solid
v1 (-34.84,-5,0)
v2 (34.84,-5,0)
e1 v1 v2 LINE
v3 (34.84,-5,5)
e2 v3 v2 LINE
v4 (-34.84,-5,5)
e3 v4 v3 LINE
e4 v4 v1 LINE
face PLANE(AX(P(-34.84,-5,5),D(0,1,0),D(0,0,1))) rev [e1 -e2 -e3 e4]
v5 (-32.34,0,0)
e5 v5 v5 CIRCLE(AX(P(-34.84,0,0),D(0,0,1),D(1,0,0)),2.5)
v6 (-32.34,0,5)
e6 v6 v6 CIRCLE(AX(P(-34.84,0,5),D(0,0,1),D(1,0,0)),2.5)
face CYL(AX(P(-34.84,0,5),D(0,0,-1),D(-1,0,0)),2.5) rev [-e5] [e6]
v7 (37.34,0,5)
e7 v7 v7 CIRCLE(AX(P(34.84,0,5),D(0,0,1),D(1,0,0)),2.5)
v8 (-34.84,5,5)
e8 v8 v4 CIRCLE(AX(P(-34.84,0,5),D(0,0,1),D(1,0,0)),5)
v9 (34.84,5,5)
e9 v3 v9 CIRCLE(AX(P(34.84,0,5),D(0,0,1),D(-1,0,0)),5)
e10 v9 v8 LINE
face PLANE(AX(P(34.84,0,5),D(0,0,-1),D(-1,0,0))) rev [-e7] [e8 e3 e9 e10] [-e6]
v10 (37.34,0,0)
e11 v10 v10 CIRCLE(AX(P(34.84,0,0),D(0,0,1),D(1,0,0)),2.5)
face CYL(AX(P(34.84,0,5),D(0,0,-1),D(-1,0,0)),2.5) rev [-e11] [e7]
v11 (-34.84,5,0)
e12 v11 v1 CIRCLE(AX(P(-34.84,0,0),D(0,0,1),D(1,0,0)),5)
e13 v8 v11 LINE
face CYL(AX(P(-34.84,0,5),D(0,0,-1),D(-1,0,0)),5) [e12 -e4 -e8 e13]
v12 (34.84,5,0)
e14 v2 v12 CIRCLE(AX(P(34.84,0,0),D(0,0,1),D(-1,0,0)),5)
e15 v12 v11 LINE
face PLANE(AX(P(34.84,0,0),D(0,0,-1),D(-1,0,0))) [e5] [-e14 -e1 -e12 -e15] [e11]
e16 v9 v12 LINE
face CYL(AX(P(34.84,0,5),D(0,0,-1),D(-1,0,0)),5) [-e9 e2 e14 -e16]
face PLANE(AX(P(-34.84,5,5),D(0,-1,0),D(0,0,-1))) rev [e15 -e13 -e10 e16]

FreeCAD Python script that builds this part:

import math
import FreeCAD as App
import Part
import Sketcher
from FreeCAD import Vector

doc = App.newDocument("Part")
params = doc.addObject("Spreadsheet::Sheet", "Params")
for row, (alias, value) in enumerate([
    ("sketch1_diameter", "5 mm"),
    ("sketch1_radius", "5 mm"),
    ("sketch1_width", "69.68 mm"),
    ("pad1_length", "5 mm"),
], start=1):
    params.set(f"A{row}", alias)
    params.set(f"B{row}", "=" + value)
    params.setAlias(f"B{row}", alias)

body = doc.addObject("PartDesign::Body", "Body")

# Sketch on XY plane
sketch1 = doc.addObject("Sketcher::SketchObject", "Sketch")
body.addObject(sketch1)
sketch1.AttachmentSupport = (doc.XY_Plane, [""])
sketch1.MapMode = "FlatFace"
sketch1.addGeometry(Part.LineSegment(Vector(34.8, 5, 0), Vector(-34.8, 5, 0)), False)
sketch1.addGeometry(Part.ArcOfCircle(Part.Circle(Vector(-34.8, 0, 0), Vector(0, 0, 1), 5), math.radians(90), math.radians(270)), False)
sketch1.addGeometry(Part.LineSegment(Vector(-34.8, -5, 0), Vector(34.8, -5, 0)), False)
sketch1.addGeometry(Part.ArcOfCircle(Part.Circle(Vector(34.8, 0, 0), Vector(0, 0, 1), 5), math.radians(-90), math.radians(90)), False)
sketch1.addGeometry(Part.Circle(Vector(34.8, 0, 0), Vector(0, 0, 1), 2.5), False)
sketch1.addGeometry(Part.Circle(Vector(-34.8, 0, 0), Vector(0, 0, 1), 2.5), False)
sketch1.addConstraint(Sketcher.Constraint("Tangent", 0, 2, 1, 1))
sketch1.addConstraint(Sketcher.Constraint("Tangent", 1, 2, 2, 1))
sketch1.addConstraint(Sketcher.Constraint("Tangent", 2, 2, 3, 1))
sketch1.addConstraint(Sketcher.Constraint("Tangent", 3, 2, 0, 1))
sketch1.addConstraint(Sketcher.Constraint("Horizontal", 0))
sketch1.addConstraint(Sketcher.Constraint("Horizontal", 2))
sketch1.addConstraint(Sketcher.Constraint("Coincident", 4, 3, 3, 3))
sketch1.addConstraint(Sketcher.Constraint("Coincident", 5, 3, 1, 3))
sketch1.addConstraint(Sketcher.Constraint("Equal", 4, 5))
sketch1.addConstraint(Sketcher.Constraint("Symmetric", 1, 3, 3, 3, -1, 1))
sketch1.addConstraint(Sketcher.Constraint("Diameter", 4, 5.0))
sketch1.addConstraint(Sketcher.Constraint("Radius", 1, 5.0))
sketch1.addConstraint(Sketcher.Constraint("DistanceX", 0, 2, 0, 1, 69.68))
sketch1.setExpression("Constraints[10]", "Params.sketch1_diameter")
sketch1.setExpression("Constraints[11]", "Params.sketch1_radius")
sketch1.setExpression("Constraints[12]", "Params.sketch1_width")
pad1 = doc.addObject("PartDesign::Pad", "Pad")
body.addObject(pad1)
pad1.Profile = sketch1
pad1.setExpression("Length", "Params.pad1_length")

doc.recompute()
